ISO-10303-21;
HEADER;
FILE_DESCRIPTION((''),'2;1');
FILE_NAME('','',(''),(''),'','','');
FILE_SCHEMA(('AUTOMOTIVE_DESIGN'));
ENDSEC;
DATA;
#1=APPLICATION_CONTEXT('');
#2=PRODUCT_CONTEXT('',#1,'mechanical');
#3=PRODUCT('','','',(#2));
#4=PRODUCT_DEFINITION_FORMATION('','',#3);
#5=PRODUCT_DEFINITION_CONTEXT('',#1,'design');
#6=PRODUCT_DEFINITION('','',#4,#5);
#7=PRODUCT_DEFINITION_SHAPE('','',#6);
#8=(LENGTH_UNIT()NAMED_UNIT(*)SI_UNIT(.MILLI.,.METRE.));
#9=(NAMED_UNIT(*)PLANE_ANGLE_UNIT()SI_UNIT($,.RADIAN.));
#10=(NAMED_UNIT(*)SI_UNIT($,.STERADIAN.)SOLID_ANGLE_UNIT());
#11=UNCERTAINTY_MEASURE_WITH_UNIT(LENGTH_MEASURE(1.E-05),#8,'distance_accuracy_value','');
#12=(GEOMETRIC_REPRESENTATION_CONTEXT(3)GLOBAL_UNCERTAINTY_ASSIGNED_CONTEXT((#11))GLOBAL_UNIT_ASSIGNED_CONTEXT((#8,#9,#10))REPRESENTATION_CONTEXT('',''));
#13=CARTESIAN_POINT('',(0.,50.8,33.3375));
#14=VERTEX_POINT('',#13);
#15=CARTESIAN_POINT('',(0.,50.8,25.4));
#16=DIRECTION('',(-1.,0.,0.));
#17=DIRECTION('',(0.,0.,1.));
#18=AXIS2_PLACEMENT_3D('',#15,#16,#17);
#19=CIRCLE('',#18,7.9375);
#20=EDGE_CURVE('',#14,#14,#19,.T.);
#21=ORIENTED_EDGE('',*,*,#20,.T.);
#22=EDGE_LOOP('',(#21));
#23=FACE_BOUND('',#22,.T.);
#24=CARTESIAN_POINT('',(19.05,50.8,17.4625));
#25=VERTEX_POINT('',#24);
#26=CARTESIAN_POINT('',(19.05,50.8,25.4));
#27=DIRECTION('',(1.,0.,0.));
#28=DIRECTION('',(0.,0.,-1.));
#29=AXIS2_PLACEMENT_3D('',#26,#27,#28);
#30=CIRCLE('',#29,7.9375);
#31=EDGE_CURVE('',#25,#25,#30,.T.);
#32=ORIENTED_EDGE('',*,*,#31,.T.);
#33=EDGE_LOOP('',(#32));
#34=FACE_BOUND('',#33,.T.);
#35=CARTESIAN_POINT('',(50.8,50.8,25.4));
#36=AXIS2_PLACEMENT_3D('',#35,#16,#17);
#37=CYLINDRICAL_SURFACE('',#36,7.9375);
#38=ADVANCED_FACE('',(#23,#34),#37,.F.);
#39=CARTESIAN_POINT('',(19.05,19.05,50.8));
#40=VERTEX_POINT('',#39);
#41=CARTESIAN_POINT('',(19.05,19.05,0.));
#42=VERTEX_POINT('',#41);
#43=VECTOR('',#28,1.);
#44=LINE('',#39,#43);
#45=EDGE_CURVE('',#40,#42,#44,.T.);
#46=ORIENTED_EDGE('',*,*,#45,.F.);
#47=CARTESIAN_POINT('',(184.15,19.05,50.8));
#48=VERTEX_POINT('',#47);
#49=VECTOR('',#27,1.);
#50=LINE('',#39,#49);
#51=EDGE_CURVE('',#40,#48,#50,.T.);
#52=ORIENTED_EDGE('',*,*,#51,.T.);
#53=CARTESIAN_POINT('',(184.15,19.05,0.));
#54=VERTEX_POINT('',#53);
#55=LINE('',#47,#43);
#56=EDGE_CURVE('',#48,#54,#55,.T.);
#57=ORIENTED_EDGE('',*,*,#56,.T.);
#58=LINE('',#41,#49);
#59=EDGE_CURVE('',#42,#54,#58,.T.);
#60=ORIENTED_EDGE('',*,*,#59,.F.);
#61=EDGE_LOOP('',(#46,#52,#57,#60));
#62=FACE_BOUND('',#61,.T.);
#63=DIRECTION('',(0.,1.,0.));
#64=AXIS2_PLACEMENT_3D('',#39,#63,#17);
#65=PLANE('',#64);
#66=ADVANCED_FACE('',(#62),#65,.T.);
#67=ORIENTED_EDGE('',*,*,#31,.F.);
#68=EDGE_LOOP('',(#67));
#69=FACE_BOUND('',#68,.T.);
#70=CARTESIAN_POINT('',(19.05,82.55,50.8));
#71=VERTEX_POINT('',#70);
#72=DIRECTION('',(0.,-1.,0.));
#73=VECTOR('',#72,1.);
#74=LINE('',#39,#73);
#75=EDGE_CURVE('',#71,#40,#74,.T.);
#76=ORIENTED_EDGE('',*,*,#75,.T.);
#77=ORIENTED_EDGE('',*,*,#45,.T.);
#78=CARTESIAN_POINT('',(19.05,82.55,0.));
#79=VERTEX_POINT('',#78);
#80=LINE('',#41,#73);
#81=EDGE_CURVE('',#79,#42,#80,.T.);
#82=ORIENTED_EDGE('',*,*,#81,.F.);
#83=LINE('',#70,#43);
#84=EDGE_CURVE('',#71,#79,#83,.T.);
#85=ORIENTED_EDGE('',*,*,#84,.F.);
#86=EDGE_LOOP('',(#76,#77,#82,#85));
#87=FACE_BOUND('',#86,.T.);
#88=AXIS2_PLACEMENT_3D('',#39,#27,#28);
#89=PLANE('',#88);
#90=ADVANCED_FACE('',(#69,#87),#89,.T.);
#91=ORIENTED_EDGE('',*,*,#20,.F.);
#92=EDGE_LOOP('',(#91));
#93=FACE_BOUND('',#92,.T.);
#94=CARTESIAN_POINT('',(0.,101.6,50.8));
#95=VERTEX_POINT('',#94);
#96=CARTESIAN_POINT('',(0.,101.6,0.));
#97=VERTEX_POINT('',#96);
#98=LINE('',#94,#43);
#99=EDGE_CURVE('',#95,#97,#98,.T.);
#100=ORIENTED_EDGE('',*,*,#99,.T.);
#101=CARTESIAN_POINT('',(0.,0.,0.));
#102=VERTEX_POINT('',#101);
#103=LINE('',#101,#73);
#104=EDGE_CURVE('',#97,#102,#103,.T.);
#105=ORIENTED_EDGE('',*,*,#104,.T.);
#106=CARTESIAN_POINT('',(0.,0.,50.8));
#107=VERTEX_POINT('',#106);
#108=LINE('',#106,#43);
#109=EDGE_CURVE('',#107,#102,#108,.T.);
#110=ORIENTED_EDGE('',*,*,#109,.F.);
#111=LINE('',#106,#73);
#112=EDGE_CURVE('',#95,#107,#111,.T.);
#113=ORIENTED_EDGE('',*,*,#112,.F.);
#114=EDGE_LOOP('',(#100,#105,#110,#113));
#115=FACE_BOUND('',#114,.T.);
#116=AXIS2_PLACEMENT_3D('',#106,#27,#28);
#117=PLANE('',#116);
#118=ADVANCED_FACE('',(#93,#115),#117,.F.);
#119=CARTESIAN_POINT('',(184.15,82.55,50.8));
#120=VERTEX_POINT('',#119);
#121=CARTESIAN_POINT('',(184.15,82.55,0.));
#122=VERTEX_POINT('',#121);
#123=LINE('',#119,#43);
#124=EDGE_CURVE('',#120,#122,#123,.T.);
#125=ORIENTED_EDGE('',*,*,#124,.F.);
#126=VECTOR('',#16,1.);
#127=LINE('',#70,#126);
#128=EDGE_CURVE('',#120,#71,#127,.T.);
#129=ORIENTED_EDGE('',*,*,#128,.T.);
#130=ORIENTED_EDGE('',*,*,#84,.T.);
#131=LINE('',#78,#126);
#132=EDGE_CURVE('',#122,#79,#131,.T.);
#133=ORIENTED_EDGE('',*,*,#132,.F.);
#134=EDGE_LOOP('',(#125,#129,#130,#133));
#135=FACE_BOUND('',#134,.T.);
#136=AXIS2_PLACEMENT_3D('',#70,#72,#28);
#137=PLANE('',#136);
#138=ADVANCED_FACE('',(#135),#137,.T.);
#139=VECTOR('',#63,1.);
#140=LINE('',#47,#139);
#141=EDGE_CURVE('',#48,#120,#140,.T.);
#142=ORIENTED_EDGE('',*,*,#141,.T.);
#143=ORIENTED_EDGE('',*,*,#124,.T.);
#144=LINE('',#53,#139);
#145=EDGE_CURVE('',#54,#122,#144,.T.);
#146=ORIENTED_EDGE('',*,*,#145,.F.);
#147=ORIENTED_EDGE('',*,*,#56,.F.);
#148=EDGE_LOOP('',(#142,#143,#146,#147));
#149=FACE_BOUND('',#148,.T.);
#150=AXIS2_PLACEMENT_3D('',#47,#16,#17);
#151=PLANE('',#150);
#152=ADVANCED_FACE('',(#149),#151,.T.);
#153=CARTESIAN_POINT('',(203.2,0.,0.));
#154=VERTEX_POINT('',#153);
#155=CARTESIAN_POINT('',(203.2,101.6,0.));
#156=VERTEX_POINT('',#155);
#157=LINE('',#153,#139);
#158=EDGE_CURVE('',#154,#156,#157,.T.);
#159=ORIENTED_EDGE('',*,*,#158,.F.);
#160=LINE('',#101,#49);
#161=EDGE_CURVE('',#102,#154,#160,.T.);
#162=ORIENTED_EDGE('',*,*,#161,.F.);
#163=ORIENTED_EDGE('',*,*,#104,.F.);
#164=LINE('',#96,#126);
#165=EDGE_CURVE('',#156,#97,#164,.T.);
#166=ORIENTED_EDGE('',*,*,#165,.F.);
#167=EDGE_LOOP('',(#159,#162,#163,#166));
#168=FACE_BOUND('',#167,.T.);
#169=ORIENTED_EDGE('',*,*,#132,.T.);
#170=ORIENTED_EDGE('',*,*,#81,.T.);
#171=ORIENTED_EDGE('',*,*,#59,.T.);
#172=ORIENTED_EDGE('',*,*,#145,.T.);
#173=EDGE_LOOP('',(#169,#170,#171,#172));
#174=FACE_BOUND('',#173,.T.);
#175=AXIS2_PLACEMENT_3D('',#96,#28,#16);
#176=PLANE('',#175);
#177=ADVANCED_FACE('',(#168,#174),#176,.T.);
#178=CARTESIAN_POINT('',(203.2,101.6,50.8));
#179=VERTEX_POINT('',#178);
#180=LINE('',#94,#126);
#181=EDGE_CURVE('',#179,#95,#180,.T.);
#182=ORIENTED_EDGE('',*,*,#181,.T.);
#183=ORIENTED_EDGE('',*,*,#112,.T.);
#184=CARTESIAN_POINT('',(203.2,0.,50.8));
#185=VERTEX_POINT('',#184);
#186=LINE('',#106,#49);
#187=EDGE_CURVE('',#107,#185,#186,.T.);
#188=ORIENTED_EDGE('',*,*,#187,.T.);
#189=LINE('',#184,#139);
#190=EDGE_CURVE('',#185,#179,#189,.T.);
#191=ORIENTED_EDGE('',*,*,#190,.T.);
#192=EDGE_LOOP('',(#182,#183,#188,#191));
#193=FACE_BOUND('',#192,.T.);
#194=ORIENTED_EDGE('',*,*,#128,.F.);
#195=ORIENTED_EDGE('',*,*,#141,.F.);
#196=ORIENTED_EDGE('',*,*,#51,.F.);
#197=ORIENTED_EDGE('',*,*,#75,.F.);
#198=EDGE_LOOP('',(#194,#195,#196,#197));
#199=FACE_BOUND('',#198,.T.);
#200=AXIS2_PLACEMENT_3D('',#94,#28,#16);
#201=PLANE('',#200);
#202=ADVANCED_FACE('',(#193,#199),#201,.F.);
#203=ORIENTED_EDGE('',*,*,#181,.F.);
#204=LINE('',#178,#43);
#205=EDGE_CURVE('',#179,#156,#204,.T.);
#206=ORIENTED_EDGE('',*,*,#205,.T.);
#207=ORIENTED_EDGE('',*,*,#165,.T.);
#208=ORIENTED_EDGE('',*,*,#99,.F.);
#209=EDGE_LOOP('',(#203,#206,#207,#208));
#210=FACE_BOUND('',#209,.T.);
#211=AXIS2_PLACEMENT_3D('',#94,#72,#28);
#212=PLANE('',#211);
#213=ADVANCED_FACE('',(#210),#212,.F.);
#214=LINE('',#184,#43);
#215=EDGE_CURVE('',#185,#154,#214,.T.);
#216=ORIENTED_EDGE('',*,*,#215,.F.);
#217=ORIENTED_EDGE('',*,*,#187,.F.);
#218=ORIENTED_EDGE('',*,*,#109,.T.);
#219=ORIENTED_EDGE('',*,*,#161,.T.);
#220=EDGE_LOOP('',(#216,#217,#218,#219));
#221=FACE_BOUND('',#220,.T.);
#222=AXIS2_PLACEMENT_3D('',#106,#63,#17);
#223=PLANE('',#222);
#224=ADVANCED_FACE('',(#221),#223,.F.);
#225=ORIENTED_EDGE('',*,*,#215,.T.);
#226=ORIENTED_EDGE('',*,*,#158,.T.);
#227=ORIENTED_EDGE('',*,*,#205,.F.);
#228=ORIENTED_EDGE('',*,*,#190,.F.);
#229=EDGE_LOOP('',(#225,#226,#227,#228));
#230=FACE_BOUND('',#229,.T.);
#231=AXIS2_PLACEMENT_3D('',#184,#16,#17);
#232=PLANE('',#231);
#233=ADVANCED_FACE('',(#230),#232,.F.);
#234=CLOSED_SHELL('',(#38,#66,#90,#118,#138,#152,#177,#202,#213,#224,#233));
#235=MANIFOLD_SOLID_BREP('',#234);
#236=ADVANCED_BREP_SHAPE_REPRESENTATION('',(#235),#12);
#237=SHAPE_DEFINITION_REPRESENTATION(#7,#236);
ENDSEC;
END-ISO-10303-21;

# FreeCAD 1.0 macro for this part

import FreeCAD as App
import Part
import Sketcher
from FreeCAD import Vector
Q = App.Units.Quantity


def add_polygon(sketch, points):
    """Adds a closed chain of lines whose ends are joined by coincident constraints."""
    first, n = sketch.GeometryCount, len(points)
    for a, b in zip(points, points[1:] + points[:1]):
        sketch.addGeometry(Part.LineSegment(App.Vector(*a, 0), App.Vector(*b, 0)), False)
    for i in range(n):
        sketch.addConstraint(Sketcher.Constraint("Coincident", first + i, 2, first + (i + 1) % n, 1))

doc = App.newDocument("Part")
body = doc.addObject("PartDesign::Body", "Body")

sketch1 = body.newObject("Sketcher::SketchObject", "Sketch")
sketch1.AttachmentSupport = (doc.getObject("XY_Plane"), [""])
sketch1.MapMode = "FlatFace"
add_polygon(sketch1, [(0, 102), (0, 0), (203, 0), (203, 102)])
add_polygon(sketch1, [(184, 19), (19, 19), (19, 83), (184, 83)])
sketch1.addConstraint([
    Sketcher.Constraint("Vertical", 0),
    Sketcher.Constraint("Horizontal", 1),
    Sketcher.Constraint("Vertical", 2),
    Sketcher.Constraint("Horizontal", 3),
    Sketcher.Constraint("Horizontal", 4),
    Sketcher.Constraint("Vertical", 5),
    Sketcher.Constraint("Horizontal", 6),
    Sketcher.Constraint("Vertical", 7),
    Sketcher.Constraint("Coincident", 0, 2, -1, 1),
    Sketcher.Constraint("DistanceX", 1, 1, 1, 2, Q("8 in")),
    Sketcher.Constraint("DistanceY", 0, 2, 0, 1, Q("4 in")),
    Sketcher.Constraint("DistanceX", 4, 2, 4, 1, Q("6.5 in")),
    Sketcher.Constraint("DistanceY", 5, 1, 5, 2, Q("2.5 in")),
    Sketcher.Constraint("DistanceX", -1, 1, 4, 2, Q("0.75 in")),
    Sketcher.Constraint("DistanceY", -1, 1, 4, 2, Q("0.75 in")),
])
pad1 = body.newObject("PartDesign::Pad", "Pad")
pad1.Profile = sketch1
pad1.Length = Q("2 in")

sketch2 = body.newObject("Sketcher::SketchObject", "Sketch001")
sketch2.AttachmentSupport = (doc.getObject("YZ_Plane"), [""])
sketch2.MapMode = "FlatFace"
sketch2.addGeometry(Part.Circle(Vector(51, 25, 0), Vector(0, 0, 1), 8), False)
sketch2.addConstraint([
    Sketcher.Constraint("Diameter", 0, Q("0.625 in")),
    Sketcher.Constraint("DistanceX", -1, 1, 0, 3, Q("2 in")),
    Sketcher.Constraint("DistanceY", -1, 1, 0, 3, Q("1 in")),
])
pocket1 = body.newObject("PartDesign::Pocket", "Pocket")
pocket1.Profile = sketch2
pocket1.Length = Q("2 in")
pocket1.Reversed = True

doc.recompute()
